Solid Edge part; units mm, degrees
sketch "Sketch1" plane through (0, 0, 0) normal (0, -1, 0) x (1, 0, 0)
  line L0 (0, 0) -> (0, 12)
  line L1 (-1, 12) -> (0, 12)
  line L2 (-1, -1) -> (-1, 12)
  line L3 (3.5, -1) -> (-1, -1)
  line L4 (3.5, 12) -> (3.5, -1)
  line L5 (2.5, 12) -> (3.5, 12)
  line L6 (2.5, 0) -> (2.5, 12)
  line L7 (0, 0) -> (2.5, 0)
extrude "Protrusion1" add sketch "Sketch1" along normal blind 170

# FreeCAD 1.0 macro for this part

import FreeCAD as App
import Part
import Sketcher

V = App.Vector


def add_polygon(sketch, points):
    """Adds a closed chain of lines whose ends are joined by coincident constraints."""
    first, n = sketch.GeometryCount, len(points)
    for a, b in zip(points, points[1:] + points[:1]):
        sketch.addGeometry(Part.LineSegment(App.Vector(*a, 0), App.Vector(*b, 0)), False)
    for i in range(n):
        sketch.addConstraint(Sketcher.Constraint("Coincident", first + i, 2, first + (i + 1) % n, 1))

doc = App.newDocument("Part")
params = doc.addObject("Spreadsheet::Sheet", "Params")
for row, (alias, value) in enumerate([
    ("sketch1_width", "1 mm"),
    ("sketch1_height", "12 mm"),
    ("sketch1_height2", "13 mm"),
    ("sketch1_width2", "2.5 mm"),
    ("pad1_length", "170 mm"),
], start=1):
    params.set(f"A{row}", alias)
    params.set(f"B{row}", "=" + value)
    params.setAlias(f"B{row}", alias)

body = doc.addObject("PartDesign::Body", "Body")

sketch1 = body.newObject("Sketcher::SketchObject", "Sketch")
sketch1.AttachmentSupport = (doc.getObject("XZ_Plane"), [""])
sketch1.MapMode = "FlatFace"
add_polygon(sketch1, [(2.5, 0), (0, 0), (0, 12), (-1, 12), (-1, -1), (3.5, -1), (3.5, 12), (2.5, 12)])
sketch1.addConstraint([
    Sketcher.Constraint("Horizontal", 0),
    Sketcher.Constraint("Vertical", 1),
    Sketcher.Constraint("Horizontal", 2),
    Sketcher.Constraint("Vertical", 3),
    Sketcher.Constraint("Horizontal", 4),
    Sketcher.Constraint("Vertical", 5),
    Sketcher.Constraint("Horizontal", 6),
    Sketcher.Constraint("Vertical", 7),
    Sketcher.Constraint("Coincident", 0, 2, -1, 1),
    Sketcher.Constraint("Horizontal", 2, 2, 5, 2),
    Sketcher.Constraint("Equal", 2, 6),
    Sketcher.Constraint("DistanceX", 2, 2, 2, 1, 1.0),
    Sketcher.Constraint("DistanceY", 1, 1, 1, 2, 12.0),
    Sketcher.Constraint("DistanceY", 3, 2, 3, 1, 13.0),
    Sketcher.Constraint("DistanceX", 0, 2, 0, 1, 2.5),
])
sketch1.setExpression("Constraints[19]", "Params.sketch1_width")
sketch1.setExpression("Constraints[20]", "Params.sketch1_height")
sketch1.setExpression("Constraints[21]", "Params.sketch1_height2")
sketch1.setExpression("Constraints[22]", "Params.sketch1_width2")
pad1 = body.newObject("PartDesign::Pad", "Pad")
pad1.Profile = sketch1
pad1.setExpression("Length", "Params.pad1_length")

doc.recompute()
